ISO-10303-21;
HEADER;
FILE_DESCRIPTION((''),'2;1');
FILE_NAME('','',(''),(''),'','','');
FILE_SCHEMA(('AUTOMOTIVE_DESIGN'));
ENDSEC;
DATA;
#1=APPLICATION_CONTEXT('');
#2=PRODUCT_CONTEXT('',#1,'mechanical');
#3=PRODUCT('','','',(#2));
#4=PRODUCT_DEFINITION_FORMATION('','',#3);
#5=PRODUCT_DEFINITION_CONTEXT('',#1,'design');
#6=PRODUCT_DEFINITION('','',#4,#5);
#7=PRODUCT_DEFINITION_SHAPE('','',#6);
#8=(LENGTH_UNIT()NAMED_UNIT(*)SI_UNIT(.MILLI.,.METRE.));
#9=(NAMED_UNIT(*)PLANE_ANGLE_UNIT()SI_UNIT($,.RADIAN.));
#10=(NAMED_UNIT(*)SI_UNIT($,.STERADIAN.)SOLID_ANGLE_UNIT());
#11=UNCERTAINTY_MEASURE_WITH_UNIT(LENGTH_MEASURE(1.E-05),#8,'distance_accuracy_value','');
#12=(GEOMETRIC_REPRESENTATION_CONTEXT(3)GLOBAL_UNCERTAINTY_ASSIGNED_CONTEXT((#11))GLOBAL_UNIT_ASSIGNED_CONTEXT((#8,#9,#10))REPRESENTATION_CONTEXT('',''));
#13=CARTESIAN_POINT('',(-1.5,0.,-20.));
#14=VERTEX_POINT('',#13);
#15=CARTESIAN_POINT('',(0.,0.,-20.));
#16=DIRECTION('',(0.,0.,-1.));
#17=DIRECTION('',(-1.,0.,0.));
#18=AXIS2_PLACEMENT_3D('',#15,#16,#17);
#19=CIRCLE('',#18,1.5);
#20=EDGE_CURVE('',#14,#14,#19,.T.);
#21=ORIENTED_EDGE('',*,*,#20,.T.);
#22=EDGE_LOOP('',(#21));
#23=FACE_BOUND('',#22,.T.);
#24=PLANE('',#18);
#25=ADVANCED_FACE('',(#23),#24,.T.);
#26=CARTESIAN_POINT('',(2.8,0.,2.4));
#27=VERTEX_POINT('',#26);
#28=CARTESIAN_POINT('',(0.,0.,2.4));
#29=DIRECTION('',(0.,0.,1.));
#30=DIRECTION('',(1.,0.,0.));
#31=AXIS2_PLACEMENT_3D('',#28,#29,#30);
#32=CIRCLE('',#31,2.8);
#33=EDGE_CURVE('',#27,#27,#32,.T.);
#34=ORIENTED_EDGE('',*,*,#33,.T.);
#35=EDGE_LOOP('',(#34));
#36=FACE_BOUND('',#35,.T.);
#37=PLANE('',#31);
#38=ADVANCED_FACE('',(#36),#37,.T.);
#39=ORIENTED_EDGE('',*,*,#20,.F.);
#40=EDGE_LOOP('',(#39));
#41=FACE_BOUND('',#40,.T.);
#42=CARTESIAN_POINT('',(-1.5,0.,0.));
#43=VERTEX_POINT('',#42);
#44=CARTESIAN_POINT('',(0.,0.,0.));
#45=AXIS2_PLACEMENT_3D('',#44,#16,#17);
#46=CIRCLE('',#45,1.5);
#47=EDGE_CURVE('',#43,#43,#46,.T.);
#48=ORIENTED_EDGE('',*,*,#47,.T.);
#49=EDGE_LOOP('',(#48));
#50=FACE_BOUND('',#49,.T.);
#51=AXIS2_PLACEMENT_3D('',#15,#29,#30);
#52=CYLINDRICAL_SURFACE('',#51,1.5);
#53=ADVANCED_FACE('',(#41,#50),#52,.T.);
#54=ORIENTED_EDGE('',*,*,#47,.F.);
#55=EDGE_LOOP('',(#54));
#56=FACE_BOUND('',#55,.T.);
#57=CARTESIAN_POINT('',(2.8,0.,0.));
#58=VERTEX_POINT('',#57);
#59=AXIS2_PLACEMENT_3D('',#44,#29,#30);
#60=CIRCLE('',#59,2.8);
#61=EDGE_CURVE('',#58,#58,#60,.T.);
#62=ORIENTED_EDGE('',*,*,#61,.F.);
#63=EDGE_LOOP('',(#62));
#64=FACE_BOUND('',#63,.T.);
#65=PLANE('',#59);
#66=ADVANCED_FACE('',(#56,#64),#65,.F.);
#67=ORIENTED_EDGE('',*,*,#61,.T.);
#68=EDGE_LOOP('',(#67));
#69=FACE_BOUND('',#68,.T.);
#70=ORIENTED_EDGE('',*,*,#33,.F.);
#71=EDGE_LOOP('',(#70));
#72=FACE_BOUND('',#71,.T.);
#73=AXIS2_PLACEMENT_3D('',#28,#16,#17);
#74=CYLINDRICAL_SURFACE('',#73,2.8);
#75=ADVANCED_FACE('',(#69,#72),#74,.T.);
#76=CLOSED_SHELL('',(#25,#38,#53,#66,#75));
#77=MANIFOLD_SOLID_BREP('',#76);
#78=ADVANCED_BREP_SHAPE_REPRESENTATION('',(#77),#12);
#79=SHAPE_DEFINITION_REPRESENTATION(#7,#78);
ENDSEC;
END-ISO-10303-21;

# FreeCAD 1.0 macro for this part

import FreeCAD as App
import Part
import Sketcher

V = App.Vector

doc = App.newDocument("Part")
body = doc.addObject("PartDesign::Body", "Body")

# Sketch on XY plane
sketch1 = body.newObject("Sketcher::SketchObject", "Sketch")
sketch1.AttachmentSupport = (doc.getObject("XY_Plane"), [""])
sketch1.MapMode = "FlatFace"
sketch1.addGeometry(Part.Circle(V(0, 0, 0), V(0, 0, 1), 2.8), False)
sketch1.addConstraint([
    Sketcher.Constraint("Coincident", 0, 3, -1, 1),
    Sketcher.Constraint("Diameter", 0, 5.6),
])
pad1 = body.newObject("PartDesign::Pad", "Pad")
pad1.Profile = sketch1
pad1.Length = 2.4

# Sketch on XY plane
sketch2 = body.newObject("Sketcher::SketchObject", "Sketch001")
sketch2.AttachmentSupport = (doc.getObject("XY_Plane"), [""])
sketch2.MapMode = "FlatFace"
sketch2.addGeometry(Part.Circle(V(0, 0, 0), V(0, 0, 1), 1.5), False)
sketch2.addConstraint([
    Sketcher.Constraint("Coincident", 0, 3, -1, 1),
    Sketcher.Constraint("Diameter", 0, 3.0),
])
pad2 = body.newObject("PartDesign::Pad", "Pad001")
pad2.Profile = sketch2
pad2.Length = 20
pad2.Reversed = True

doc.recompute()
